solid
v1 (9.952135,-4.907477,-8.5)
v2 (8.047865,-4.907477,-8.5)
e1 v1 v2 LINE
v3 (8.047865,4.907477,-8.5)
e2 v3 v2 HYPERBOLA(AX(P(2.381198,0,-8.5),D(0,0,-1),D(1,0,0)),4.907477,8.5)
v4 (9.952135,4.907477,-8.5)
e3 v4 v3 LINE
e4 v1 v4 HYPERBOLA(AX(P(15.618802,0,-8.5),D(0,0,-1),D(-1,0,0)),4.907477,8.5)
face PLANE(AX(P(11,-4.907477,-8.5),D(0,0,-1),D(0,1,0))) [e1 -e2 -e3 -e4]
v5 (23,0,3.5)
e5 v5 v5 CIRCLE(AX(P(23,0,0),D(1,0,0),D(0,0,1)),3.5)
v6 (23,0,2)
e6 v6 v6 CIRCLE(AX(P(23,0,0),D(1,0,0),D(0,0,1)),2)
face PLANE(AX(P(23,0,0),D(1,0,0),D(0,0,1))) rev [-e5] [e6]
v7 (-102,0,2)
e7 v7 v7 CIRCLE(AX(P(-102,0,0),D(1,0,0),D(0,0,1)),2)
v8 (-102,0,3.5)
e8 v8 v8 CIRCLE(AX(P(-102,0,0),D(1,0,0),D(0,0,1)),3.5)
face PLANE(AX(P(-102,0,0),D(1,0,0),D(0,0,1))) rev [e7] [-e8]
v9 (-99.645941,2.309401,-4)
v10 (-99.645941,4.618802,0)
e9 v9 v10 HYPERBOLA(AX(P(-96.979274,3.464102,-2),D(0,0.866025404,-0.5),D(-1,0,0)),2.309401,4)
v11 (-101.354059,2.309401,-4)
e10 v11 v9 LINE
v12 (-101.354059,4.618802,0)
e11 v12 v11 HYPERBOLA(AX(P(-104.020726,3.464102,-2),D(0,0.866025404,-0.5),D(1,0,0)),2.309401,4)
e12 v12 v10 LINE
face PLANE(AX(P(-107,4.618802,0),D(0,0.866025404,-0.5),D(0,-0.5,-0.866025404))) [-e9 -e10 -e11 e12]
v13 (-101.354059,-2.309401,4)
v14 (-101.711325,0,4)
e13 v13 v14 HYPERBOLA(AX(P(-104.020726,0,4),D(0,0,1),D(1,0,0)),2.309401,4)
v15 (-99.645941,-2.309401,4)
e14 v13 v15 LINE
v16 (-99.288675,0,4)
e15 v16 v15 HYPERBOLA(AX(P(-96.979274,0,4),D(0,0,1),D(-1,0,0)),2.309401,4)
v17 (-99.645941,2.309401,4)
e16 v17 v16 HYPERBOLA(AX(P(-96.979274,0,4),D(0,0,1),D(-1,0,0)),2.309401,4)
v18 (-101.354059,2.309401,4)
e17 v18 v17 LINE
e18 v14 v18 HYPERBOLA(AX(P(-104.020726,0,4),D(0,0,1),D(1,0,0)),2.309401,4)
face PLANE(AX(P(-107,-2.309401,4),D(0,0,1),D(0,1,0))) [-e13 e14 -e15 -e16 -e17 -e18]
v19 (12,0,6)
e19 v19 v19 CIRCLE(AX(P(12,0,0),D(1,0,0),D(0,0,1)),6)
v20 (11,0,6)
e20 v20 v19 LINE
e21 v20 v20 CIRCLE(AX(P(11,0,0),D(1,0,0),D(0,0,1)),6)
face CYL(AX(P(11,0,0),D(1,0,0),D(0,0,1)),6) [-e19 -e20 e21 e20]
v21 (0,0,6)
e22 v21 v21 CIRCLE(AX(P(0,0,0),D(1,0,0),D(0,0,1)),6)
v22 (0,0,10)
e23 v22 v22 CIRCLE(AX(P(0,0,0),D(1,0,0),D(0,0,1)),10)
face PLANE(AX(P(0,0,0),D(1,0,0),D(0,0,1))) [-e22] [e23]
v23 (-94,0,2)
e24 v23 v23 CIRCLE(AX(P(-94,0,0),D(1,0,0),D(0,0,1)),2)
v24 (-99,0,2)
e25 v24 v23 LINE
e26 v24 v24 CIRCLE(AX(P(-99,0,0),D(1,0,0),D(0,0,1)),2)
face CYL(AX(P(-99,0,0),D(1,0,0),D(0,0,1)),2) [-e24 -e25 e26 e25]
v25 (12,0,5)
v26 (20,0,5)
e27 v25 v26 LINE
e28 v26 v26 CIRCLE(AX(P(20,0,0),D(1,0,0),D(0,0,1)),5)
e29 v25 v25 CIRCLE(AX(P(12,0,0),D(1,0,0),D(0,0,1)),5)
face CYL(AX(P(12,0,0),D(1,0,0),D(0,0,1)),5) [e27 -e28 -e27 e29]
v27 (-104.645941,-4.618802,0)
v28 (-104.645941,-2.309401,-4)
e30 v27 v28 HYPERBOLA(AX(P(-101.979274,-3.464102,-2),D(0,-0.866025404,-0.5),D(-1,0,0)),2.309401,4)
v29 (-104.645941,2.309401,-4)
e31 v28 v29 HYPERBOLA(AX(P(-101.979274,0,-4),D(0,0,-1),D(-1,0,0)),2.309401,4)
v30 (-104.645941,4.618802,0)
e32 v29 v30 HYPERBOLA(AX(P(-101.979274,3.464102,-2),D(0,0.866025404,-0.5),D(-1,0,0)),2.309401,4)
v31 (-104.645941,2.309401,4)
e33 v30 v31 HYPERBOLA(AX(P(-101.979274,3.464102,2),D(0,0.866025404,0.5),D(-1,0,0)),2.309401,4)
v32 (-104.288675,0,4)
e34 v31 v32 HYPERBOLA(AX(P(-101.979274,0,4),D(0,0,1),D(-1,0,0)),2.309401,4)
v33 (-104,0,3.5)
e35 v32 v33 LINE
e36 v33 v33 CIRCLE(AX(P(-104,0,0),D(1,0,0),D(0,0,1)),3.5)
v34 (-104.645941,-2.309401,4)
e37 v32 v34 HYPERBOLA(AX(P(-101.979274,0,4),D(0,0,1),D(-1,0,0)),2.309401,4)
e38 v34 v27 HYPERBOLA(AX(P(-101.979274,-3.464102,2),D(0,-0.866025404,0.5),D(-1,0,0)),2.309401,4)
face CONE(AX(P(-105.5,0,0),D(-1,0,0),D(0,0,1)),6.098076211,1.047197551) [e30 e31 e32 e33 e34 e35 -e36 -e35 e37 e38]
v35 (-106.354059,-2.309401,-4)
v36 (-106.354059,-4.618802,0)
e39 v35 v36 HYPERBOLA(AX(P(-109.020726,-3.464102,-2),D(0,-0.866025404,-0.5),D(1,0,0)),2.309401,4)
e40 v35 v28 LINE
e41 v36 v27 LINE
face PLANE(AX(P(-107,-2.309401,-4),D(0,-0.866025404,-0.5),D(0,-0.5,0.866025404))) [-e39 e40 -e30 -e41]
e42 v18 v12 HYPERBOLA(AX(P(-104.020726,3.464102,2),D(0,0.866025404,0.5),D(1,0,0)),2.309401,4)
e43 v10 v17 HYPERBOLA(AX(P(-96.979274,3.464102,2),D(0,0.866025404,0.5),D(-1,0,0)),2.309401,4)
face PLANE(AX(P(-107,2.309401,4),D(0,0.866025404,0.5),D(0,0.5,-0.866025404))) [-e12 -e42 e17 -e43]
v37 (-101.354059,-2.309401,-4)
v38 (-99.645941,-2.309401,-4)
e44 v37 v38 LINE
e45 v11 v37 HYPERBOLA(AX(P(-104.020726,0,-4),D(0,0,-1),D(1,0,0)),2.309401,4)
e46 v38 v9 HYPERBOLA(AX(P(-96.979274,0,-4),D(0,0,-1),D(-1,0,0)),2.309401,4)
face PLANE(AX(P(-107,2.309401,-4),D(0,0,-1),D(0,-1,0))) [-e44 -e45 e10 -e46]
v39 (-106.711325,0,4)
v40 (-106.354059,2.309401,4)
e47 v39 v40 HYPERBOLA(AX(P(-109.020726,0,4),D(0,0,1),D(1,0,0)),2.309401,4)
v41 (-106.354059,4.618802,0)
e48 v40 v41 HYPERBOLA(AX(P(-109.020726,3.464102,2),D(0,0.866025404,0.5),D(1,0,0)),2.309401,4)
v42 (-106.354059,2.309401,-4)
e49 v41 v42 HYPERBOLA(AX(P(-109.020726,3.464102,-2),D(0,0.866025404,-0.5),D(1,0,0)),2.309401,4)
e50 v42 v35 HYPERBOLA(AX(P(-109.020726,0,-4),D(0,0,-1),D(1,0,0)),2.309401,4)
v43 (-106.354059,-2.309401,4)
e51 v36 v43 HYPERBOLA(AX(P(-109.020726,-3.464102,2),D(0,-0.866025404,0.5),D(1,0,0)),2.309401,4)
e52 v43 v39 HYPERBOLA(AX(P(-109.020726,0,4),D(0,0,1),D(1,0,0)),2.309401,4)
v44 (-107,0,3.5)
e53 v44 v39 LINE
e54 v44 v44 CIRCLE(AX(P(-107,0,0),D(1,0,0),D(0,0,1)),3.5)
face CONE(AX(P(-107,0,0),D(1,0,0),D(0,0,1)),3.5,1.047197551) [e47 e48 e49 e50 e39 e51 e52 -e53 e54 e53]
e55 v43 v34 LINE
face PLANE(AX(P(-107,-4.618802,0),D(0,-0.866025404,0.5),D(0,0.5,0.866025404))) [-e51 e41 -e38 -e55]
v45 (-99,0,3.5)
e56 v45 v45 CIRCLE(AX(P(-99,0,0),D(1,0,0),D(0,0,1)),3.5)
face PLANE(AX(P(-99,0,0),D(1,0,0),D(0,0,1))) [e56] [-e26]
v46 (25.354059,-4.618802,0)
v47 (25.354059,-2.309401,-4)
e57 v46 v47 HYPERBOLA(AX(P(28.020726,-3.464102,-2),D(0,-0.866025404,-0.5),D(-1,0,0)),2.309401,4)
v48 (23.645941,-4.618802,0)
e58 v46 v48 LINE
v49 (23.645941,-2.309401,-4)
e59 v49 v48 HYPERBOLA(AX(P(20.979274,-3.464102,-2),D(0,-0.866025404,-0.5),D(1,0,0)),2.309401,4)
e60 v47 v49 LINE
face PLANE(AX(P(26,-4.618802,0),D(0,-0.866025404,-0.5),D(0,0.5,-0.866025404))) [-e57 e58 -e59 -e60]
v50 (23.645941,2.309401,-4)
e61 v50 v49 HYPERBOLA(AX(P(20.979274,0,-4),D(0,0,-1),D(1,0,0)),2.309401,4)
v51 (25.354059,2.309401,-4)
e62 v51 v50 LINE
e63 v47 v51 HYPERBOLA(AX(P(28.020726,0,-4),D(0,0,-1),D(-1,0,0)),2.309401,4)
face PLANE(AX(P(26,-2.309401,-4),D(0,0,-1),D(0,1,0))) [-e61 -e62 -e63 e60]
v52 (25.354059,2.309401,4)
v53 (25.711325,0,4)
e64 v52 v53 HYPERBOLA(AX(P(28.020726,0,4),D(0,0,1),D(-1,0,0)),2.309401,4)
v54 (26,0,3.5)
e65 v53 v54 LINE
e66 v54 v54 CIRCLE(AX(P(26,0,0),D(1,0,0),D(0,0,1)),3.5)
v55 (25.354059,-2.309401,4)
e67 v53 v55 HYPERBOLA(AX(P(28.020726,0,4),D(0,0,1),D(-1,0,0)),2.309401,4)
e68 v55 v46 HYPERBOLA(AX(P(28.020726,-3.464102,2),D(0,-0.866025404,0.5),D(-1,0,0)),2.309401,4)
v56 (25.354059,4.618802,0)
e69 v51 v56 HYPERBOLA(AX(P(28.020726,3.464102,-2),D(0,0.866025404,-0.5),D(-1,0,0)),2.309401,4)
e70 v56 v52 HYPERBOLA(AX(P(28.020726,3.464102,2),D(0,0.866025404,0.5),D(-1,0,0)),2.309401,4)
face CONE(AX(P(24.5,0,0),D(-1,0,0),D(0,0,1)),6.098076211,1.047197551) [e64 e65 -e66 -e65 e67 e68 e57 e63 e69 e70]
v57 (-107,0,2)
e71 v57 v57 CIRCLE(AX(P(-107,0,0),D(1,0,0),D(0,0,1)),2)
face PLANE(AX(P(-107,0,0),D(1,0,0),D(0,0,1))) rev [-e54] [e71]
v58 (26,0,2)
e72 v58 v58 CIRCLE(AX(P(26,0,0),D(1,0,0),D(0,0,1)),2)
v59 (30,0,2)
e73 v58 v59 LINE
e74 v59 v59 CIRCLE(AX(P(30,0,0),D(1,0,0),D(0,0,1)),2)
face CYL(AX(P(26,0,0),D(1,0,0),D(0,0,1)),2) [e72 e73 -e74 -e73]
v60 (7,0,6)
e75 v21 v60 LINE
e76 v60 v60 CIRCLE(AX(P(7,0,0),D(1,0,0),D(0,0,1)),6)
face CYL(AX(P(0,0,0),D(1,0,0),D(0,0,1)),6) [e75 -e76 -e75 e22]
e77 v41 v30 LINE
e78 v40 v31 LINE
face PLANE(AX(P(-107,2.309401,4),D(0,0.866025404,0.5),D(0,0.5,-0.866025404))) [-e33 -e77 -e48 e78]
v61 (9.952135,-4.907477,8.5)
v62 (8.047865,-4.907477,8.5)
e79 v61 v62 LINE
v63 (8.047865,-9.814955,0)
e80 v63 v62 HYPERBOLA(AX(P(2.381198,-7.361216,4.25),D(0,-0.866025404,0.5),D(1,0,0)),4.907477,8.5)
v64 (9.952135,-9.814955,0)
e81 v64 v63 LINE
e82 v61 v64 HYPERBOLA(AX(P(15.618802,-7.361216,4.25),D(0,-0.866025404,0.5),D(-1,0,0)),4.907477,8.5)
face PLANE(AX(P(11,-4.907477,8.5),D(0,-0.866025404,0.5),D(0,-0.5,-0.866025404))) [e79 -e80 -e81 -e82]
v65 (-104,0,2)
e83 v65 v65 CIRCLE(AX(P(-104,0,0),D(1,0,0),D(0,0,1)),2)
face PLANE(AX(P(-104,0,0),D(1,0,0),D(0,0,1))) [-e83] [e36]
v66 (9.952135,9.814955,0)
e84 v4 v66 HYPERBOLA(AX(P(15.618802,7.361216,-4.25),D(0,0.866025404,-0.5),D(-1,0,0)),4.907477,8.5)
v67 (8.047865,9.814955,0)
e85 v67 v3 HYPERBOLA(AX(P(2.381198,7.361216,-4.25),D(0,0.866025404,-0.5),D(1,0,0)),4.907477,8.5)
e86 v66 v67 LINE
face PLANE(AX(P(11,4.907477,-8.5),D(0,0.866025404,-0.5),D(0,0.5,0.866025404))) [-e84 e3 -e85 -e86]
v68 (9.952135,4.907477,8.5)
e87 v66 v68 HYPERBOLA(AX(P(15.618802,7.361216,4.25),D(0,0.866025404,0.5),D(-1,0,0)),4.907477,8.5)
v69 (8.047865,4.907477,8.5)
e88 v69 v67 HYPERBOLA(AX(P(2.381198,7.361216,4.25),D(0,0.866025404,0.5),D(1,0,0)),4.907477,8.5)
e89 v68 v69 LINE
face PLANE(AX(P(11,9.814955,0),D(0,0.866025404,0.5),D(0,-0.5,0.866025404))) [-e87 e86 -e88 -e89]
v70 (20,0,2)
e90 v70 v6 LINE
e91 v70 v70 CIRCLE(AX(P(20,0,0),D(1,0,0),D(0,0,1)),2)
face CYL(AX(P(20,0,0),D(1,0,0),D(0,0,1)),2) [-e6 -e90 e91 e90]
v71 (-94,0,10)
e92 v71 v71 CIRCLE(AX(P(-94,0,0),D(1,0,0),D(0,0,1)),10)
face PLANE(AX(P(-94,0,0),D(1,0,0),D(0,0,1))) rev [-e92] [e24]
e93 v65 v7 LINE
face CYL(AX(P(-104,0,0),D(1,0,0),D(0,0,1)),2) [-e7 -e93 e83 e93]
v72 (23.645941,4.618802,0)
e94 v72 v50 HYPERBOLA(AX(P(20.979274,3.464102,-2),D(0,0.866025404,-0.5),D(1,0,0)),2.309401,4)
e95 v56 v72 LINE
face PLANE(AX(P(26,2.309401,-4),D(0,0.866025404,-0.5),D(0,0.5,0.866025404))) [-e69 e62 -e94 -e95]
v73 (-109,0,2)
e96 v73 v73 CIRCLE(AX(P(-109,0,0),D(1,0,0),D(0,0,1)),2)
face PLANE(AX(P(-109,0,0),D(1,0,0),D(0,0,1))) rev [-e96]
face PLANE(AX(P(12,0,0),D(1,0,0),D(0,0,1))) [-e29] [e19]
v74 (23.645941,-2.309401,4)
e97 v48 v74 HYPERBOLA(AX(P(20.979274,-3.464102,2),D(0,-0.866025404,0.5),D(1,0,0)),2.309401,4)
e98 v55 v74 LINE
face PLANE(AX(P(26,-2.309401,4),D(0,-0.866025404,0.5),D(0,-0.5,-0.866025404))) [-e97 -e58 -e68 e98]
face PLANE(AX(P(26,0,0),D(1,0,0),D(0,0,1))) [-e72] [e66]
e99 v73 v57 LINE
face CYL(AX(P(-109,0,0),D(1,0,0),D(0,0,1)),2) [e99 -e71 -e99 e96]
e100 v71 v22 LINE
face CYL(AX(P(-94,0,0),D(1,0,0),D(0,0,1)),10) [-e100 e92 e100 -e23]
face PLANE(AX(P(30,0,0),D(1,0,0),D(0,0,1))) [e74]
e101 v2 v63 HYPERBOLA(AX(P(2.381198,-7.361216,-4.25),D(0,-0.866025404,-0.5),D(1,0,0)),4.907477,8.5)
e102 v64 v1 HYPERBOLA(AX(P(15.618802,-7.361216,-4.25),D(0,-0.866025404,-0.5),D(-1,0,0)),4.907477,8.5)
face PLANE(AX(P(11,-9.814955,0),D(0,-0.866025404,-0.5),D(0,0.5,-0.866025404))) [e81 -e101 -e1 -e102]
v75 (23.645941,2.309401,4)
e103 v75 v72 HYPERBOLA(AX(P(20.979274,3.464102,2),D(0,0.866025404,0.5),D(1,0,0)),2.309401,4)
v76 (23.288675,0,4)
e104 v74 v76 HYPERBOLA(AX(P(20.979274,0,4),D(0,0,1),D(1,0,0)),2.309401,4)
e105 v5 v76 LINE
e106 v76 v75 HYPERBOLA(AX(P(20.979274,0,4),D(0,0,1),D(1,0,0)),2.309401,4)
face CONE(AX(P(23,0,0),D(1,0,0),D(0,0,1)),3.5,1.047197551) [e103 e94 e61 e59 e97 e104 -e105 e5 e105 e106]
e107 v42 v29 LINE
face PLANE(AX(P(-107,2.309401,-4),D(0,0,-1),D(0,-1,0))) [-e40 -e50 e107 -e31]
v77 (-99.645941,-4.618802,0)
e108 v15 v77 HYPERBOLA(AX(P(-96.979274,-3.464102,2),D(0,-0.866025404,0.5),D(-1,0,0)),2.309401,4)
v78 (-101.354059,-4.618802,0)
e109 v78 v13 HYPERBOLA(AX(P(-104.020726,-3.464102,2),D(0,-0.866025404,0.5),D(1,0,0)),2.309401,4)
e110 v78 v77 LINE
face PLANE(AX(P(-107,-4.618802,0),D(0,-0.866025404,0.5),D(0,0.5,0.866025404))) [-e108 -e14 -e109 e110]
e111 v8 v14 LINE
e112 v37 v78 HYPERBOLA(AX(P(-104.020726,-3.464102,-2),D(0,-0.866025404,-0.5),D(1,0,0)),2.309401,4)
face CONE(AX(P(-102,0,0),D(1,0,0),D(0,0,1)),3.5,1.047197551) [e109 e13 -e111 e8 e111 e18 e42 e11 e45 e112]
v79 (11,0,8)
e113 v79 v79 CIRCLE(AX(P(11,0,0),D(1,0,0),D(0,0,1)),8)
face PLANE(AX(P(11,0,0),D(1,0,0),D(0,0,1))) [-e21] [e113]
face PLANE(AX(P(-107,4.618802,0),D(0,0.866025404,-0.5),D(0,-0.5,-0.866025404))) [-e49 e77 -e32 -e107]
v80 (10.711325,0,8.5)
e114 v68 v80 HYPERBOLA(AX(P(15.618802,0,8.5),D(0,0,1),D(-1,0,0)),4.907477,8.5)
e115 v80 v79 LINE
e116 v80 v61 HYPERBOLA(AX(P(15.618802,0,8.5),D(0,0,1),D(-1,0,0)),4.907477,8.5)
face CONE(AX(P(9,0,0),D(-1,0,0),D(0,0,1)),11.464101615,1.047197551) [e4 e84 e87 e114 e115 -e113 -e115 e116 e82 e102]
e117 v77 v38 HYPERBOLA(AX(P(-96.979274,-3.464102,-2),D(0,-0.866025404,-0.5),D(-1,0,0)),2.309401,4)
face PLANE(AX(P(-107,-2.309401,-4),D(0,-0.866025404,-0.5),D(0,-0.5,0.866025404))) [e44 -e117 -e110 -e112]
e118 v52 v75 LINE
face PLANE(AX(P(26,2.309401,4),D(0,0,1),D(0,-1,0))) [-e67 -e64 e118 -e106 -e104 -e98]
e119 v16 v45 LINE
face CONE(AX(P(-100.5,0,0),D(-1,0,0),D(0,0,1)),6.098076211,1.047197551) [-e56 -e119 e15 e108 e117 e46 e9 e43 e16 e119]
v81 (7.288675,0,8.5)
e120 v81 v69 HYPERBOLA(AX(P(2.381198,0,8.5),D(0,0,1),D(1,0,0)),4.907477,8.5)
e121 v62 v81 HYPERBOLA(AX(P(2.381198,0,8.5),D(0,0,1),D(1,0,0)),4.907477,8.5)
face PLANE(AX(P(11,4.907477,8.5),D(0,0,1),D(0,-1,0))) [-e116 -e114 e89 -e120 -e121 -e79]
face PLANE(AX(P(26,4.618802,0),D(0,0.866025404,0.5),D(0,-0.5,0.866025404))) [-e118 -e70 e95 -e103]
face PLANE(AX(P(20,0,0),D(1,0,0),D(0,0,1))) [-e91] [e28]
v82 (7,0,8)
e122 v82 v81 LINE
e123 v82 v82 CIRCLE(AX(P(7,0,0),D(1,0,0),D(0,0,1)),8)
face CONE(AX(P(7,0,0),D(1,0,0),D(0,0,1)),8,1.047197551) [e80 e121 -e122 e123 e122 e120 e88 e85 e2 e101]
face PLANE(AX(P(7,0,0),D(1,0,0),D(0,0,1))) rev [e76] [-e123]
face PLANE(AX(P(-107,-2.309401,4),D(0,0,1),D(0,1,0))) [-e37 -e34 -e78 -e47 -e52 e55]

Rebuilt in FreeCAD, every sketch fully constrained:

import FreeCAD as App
import Part
import Sketcher
from FreeCAD import Vector
Q = App.Units.Quantity


def add_polygon(sketch, points):
    """Adds a closed chain of lines whose ends are joined by coincident constraints."""
    first, n = sketch.GeometryCount, len(points)
    for a, b in zip(points, points[1:] + points[:1]):
        sketch.addGeometry(Part.LineSegment(App.Vector(*a, 0), App.Vector(*b, 0)), False)
    for i in range(n):
        sketch.addConstraint(Sketcher.Constraint("Coincident", first + i, 2, first + (i + 1) % n, 1))

doc = App.newDocument("Part")
body = doc.addObject("PartDesign::Body", "Body")

# Sketch on XY plane
sketch1 = doc.addObject("Sketcher::SketchObject", "Sketch")
body.addObject(sketch1)
sketch1.AttachmentSupport = (doc.XY_Plane, [""])
sketch1.MapMode = "FlatFace"
add_polygon(sketch1, [(-109, 0), (30, 0), (30, 2), (26, 2), (26, 3.5), (24.5, 6.1), (23, 3.5), (23, 2), (20, 2), (20, 5), (12, 5), (12, 6), (11, 6), (11, 8), (9, 11.5), (7, 8), (7, 6), (0, 6), (0, 10), (-94, 10), (-94, 2), (-99, 2), (-99, 3.5), (-100.5, 6.1), (-102, 3.5), (-102, 2), (-104, 2), (-104, 3.5), (-105.5, 6.1), (-107, 3.5), (-107, 2), (-109, 2)])  # lines 0-31
sketch1.addConstraint([
    Sketcher.Constraint("Horizontal", 0),
    Sketcher.Constraint("Vertical", 1),
    Sketcher.Constraint("Horizontal", 2),
    Sketcher.Constraint("Vertical", 3),
    Sketcher.Constraint("Vertical", 6),
    Sketcher.Constraint("Horizontal", 7),
    Sketcher.Constraint("Vertical", 8),
    Sketcher.Constraint("Horizontal", 9),
    Sketcher.Constraint("Vertical", 10),
    Sketcher.Constraint("Horizontal", 11),
    Sketcher.Constraint("Vertical", 12),
    Sketcher.Constraint("Vertical", 15),
    Sketcher.Constraint("Horizontal", 16),
    Sketcher.Constraint("Vertical", 17),
    Sketcher.Constraint("Horizontal", 18),
    Sketcher.Constraint("Vertical", 19),
    Sketcher.Constraint("Horizontal", 20),
    Sketcher.Constraint("Vertical", 21),
    Sketcher.Constraint("Vertical", 24),
    Sketcher.Constraint("Horizontal", 25),
    Sketcher.Constraint("Vertical", 26),
    Sketcher.Constraint("Vertical", 29),
    Sketcher.Constraint("Horizontal", 30),
    Sketcher.Constraint("Vertical", 31),
    Sketcher.Constraint("PointOnObject", 0, 2, -1),
    Sketcher.Constraint("PointOnObject", 16, 2, -2),
    Sketcher.Constraint("Parallel", 4, 13),
    Sketcher.Constraint("Parallel", 5, 14),
    Sketcher.Constraint("Parallel", 13, 22),
    Sketcher.Constraint("Parallel", 14, 23),
    Sketcher.Constraint("Parallel", 22, 27),
    Sketcher.Constraint("Parallel", 23, 28),
    Sketcher.Constraint("Horizontal", 3, 2, 5, 2),
    Sketcher.Constraint("Horizontal", 2, 2, 6, 2),
    Sketcher.Constraint("Horizontal", 12, 2, 14, 2),
    Sketcher.Constraint("Horizontal", 11, 2, 15, 2),
    Sketcher.Constraint("Horizontal", 7, 2, 19, 2),
    Sketcher.Constraint("Horizontal", 5, 2, 21, 2),
    Sketcher.Constraint("Horizontal", 4, 2, 22, 2),
    Sketcher.Constraint("Horizontal", 21, 2, 23, 2),
    Sketcher.Constraint("Horizontal", 20, 2, 24, 2),
    Sketcher.Constraint("Horizontal", 23, 2, 26, 2),
    Sketcher.Constraint("Horizontal", 22, 2, 27, 2),
    Sketcher.Constraint("Horizontal", 26, 2, 28, 2),
    Sketcher.Constraint("Horizontal", 25, 2, 29, 2),
    Sketcher.Constraint("Equal", 25, 30),
    Sketcher.Constraint("Equal", 30, 1),
    Sketcher.Constraint("Equal", 7, 8),
    Sketcher.Constraint("Equal", 11, 10),
    Sketcher.Constraint("Equal", 1, 12),
    Sketcher.Constraint("Equal", 2, 17),
    Sketcher.Constraint("Equal", 9, 19),
    Sketcher.Constraint("Equal", 4, 5),
    Sketcher.Constraint("DistanceX", 0, 1, 0, 2, 139.0),
    Sketcher.Constraint("DistanceX", 2, 2, 2, 1, 4.0),
    Sketcher.Constraint("DistanceX", 7, 2, 7, 1, 3.0),
    Sketcher.Constraint("DistanceX", 9, 2, 9, 1, 8.0),
    Sketcher.Constraint("DistanceX", 16, 2, 16, 1, 7.0),
    Sketcher.Constraint("DistanceX", 18, 2, 18, 1, 94.0),
    Sketcher.Constraint("DistanceX", 20, 2, 20, 1, 5.0),
    Sketcher.Constraint("DistanceX", 25, 2, 25, 1, 2.0),
    Sketcher.Constraint("Angle", 4, Q("120 deg")),
    Sketcher.Constraint("Distance", 4, 3.0),
    Sketcher.Constraint("DistanceY", 3, 1, 3, 2, 1.5),
])
revolution = doc.addObject("PartDesign::Revolution", "Revolution")
body.addObject(revolution)
revolution.Profile = sketch1
revolution.ReferenceAxis = (sketch1, ["H_Axis"])
revolution.Angle = 360

# Sketch on YZ plane
sketch2 = doc.addObject("Sketcher::SketchObject", "Sketch001")
body.addObject(sketch2)
sketch2.AttachmentSupport = (doc.YZ_Plane, [""])
sketch2.MapMode = "FlatFace"
sketch2.AttachmentOffset = App.Placement(Vector(0, 0, 26), App.Rotation())
add_polygon(sketch2, [(26.7, 26.7), (-26.7, 26.7), (-26.7, -26.7), (26.7, -26.7)])  # lines 0-3
add_polygon(sketch2, [(-2.3, -4), (-4.6, 0), (-2.3, 4), (2.3, 4), (4.6, 0), (2.3, -4)])  # lines 4-9
sketch2.addConstraint([
    Sketcher.Constraint("Horizontal", 0),
    Sketcher.Constraint("Vertical", 1),
    Sketcher.Constraint("Horizontal", 2),
    Sketcher.Constraint("Vertical", 3),
    Sketcher.Constraint("Horizontal", 6),
    Sketcher.Constraint("Horizontal", 9),
    Sketcher.Constraint("Symmetric", 0, 2, 2, 2, -1, 1),
    Sketcher.Constraint("Symmetric", 4, 2, 7, 2, -1, 1),
    Sketcher.Constraint("Symmetric", 5, 2, 8, 2, -1, 1),
    Sketcher.Constraint("PointOnObject", 4, 2, -1),
    Sketcher.Constraint("Parallel", 4, 7),
    Sketcher.Constraint("Vertical", 6, 2, 8, 2),
    Sketcher.Constraint("Equal", 2, 1),
    Sketcher.Constraint("Angle", 4, Q("120 deg")),
    Sketcher.Constraint("DistanceY", -1, 1, 5, 2, 4.0),
    Sketcher.Constraint("DistanceX", 0, 2, 0, 1, 53.474),
    Sketcher.Constraint("DistanceX", 5, 2, -1, 1, 2.309401),
])
pocket1 = doc.addObject("PartDesign::Pocket", "Pocket")
body.addObject(pocket1)
pocket1.Profile = sketch2
pocket1.Length = 3

# Sketch on YZ plane
sketch3 = doc.addObject("Sketcher::SketchObject", "Sketch002")
body.addObject(sketch3)
sketch3.AttachmentSupport = (doc.YZ_Plane, [""])
sketch3.MapMode = "FlatFace"
sketch3.AttachmentOffset = App.Placement(Vector(0, 0, 11), App.Rotation())
add_polygon(sketch3, [(27, 27), (-27, 27), (-27, -27), (27, -27)])  # lines 0-3
add_polygon(sketch3, [(5, 8), (10, 0), (5, -8), (-5, -8), (-10, 0), (-5, 8)])  # lines 4-9
sketch3.addConstraint([
    Sketcher.Constraint("Horizontal", 0),
    Sketcher.Constraint("Vertical", 1),
    Sketcher.Constraint("Horizontal", 2),
    Sketcher.Constraint("Vertical", 3),
    Sketcher.Constraint("Horizontal", 6),
    Sketcher.Constraint("Horizontal", 9),
    Sketcher.Constraint("Symmetric", 0, 2, 2, 2, -1, 1),
    Sketcher.Constraint("Symmetric", 4, 2, 7, 2, -1, 1),
    Sketcher.Constraint("Symmetric", 5, 2, 8, 2, -1, 1),
    Sketcher.Constraint("PointOnObject", 4, 2, -1),
    Sketcher.Constraint("Parallel", 4, 7),
    Sketcher.Constraint("Vertical", 6, 2, 8, 2),
    Sketcher.Constraint("Equal", 2, 1),
    Sketcher.Constraint("Angle", 4, Q("-60 deg")),
    Sketcher.Constraint("DistanceY", 6, 2, 8, 2, 17.0),
    Sketcher.Constraint("DistanceX", 0, 2, 0, 1, 53.474),
    Sketcher.Constraint("DistanceX", 6, 2, 6, 1, 9.814955),
])
pocket2 = doc.addObject("PartDesign::Pocket", "Pocket001")
body.addObject(pocket2)
pocket2.Profile = sketch3
pocket2.Length = 4

# Sketch on YZ plane
sketch4 = doc.addObject("Sketcher::SketchObject", "Sketch003")
body.addObject(sketch4)
sketch4.AttachmentSupport = (doc.YZ_Plane, [""])
sketch4.MapMode = "FlatFace"
sketch4.AttachmentOffset = App.Placement(Vector(0, 0, -107), App.Rotation())
add_polygon(sketch4, [(25.2, -25.2), (-25.2, -25.2), (-25.2, 25.2), (25.2, 25.2)])  # lines 0-3
add_polygon(sketch4, [(2.3, -4), (4.6, 0), (2.3, 4), (-2.3, 4), (-4.6, 0), (-2.3, -4)])  # lines 4-9
sketch4.addConstraint([
    Sketcher.Constraint("Horizontal", 0),
    Sketcher.Constraint("Vertical", 1),
    Sketcher.Constraint("Horizontal", 2),
    Sketcher.Constraint("Vertical", 3),
    Sketcher.Constraint("Horizontal", 6),
    Sketcher.Constraint("Horizontal", 9),
    Sketcher.Constraint("Symmetric", 0, 2, 2, 2, -1, 1),
    Sketcher.Constraint("Symmetric", 4, 2, 7, 2, -1, 1),
    Sketcher.Constraint("Symmetric", 5, 2, 8, 2, -1, 1),
    Sketcher.Constraint("PointOnObject", 4, 2, -1),
    Sketcher.Constraint("Parallel", 4, 7),
    Sketcher.Constraint("Vertical", 6, 2, 8, 2),
    Sketcher.Constraint("Equal", 2, 1),
    Sketcher.Constraint("Angle", 4, Q("60 deg")),
    Sketcher.Constraint("DistanceY", -1, 1, 5, 2, 4.0),
    Sketcher.Constraint("DistanceX", 0, 2, 0, 1, 50.37),
    Sketcher.Constraint("DistanceX", -1, 1, 5, 2, 2.309401),
])
pocket3 = doc.addObject("PartDesign::Pocket", "Pocket002")
body.addObject(pocket3)
pocket3.Profile = sketch4
pocket3.Length = 8
pocket3.Reversed = True

doc.recompute()
